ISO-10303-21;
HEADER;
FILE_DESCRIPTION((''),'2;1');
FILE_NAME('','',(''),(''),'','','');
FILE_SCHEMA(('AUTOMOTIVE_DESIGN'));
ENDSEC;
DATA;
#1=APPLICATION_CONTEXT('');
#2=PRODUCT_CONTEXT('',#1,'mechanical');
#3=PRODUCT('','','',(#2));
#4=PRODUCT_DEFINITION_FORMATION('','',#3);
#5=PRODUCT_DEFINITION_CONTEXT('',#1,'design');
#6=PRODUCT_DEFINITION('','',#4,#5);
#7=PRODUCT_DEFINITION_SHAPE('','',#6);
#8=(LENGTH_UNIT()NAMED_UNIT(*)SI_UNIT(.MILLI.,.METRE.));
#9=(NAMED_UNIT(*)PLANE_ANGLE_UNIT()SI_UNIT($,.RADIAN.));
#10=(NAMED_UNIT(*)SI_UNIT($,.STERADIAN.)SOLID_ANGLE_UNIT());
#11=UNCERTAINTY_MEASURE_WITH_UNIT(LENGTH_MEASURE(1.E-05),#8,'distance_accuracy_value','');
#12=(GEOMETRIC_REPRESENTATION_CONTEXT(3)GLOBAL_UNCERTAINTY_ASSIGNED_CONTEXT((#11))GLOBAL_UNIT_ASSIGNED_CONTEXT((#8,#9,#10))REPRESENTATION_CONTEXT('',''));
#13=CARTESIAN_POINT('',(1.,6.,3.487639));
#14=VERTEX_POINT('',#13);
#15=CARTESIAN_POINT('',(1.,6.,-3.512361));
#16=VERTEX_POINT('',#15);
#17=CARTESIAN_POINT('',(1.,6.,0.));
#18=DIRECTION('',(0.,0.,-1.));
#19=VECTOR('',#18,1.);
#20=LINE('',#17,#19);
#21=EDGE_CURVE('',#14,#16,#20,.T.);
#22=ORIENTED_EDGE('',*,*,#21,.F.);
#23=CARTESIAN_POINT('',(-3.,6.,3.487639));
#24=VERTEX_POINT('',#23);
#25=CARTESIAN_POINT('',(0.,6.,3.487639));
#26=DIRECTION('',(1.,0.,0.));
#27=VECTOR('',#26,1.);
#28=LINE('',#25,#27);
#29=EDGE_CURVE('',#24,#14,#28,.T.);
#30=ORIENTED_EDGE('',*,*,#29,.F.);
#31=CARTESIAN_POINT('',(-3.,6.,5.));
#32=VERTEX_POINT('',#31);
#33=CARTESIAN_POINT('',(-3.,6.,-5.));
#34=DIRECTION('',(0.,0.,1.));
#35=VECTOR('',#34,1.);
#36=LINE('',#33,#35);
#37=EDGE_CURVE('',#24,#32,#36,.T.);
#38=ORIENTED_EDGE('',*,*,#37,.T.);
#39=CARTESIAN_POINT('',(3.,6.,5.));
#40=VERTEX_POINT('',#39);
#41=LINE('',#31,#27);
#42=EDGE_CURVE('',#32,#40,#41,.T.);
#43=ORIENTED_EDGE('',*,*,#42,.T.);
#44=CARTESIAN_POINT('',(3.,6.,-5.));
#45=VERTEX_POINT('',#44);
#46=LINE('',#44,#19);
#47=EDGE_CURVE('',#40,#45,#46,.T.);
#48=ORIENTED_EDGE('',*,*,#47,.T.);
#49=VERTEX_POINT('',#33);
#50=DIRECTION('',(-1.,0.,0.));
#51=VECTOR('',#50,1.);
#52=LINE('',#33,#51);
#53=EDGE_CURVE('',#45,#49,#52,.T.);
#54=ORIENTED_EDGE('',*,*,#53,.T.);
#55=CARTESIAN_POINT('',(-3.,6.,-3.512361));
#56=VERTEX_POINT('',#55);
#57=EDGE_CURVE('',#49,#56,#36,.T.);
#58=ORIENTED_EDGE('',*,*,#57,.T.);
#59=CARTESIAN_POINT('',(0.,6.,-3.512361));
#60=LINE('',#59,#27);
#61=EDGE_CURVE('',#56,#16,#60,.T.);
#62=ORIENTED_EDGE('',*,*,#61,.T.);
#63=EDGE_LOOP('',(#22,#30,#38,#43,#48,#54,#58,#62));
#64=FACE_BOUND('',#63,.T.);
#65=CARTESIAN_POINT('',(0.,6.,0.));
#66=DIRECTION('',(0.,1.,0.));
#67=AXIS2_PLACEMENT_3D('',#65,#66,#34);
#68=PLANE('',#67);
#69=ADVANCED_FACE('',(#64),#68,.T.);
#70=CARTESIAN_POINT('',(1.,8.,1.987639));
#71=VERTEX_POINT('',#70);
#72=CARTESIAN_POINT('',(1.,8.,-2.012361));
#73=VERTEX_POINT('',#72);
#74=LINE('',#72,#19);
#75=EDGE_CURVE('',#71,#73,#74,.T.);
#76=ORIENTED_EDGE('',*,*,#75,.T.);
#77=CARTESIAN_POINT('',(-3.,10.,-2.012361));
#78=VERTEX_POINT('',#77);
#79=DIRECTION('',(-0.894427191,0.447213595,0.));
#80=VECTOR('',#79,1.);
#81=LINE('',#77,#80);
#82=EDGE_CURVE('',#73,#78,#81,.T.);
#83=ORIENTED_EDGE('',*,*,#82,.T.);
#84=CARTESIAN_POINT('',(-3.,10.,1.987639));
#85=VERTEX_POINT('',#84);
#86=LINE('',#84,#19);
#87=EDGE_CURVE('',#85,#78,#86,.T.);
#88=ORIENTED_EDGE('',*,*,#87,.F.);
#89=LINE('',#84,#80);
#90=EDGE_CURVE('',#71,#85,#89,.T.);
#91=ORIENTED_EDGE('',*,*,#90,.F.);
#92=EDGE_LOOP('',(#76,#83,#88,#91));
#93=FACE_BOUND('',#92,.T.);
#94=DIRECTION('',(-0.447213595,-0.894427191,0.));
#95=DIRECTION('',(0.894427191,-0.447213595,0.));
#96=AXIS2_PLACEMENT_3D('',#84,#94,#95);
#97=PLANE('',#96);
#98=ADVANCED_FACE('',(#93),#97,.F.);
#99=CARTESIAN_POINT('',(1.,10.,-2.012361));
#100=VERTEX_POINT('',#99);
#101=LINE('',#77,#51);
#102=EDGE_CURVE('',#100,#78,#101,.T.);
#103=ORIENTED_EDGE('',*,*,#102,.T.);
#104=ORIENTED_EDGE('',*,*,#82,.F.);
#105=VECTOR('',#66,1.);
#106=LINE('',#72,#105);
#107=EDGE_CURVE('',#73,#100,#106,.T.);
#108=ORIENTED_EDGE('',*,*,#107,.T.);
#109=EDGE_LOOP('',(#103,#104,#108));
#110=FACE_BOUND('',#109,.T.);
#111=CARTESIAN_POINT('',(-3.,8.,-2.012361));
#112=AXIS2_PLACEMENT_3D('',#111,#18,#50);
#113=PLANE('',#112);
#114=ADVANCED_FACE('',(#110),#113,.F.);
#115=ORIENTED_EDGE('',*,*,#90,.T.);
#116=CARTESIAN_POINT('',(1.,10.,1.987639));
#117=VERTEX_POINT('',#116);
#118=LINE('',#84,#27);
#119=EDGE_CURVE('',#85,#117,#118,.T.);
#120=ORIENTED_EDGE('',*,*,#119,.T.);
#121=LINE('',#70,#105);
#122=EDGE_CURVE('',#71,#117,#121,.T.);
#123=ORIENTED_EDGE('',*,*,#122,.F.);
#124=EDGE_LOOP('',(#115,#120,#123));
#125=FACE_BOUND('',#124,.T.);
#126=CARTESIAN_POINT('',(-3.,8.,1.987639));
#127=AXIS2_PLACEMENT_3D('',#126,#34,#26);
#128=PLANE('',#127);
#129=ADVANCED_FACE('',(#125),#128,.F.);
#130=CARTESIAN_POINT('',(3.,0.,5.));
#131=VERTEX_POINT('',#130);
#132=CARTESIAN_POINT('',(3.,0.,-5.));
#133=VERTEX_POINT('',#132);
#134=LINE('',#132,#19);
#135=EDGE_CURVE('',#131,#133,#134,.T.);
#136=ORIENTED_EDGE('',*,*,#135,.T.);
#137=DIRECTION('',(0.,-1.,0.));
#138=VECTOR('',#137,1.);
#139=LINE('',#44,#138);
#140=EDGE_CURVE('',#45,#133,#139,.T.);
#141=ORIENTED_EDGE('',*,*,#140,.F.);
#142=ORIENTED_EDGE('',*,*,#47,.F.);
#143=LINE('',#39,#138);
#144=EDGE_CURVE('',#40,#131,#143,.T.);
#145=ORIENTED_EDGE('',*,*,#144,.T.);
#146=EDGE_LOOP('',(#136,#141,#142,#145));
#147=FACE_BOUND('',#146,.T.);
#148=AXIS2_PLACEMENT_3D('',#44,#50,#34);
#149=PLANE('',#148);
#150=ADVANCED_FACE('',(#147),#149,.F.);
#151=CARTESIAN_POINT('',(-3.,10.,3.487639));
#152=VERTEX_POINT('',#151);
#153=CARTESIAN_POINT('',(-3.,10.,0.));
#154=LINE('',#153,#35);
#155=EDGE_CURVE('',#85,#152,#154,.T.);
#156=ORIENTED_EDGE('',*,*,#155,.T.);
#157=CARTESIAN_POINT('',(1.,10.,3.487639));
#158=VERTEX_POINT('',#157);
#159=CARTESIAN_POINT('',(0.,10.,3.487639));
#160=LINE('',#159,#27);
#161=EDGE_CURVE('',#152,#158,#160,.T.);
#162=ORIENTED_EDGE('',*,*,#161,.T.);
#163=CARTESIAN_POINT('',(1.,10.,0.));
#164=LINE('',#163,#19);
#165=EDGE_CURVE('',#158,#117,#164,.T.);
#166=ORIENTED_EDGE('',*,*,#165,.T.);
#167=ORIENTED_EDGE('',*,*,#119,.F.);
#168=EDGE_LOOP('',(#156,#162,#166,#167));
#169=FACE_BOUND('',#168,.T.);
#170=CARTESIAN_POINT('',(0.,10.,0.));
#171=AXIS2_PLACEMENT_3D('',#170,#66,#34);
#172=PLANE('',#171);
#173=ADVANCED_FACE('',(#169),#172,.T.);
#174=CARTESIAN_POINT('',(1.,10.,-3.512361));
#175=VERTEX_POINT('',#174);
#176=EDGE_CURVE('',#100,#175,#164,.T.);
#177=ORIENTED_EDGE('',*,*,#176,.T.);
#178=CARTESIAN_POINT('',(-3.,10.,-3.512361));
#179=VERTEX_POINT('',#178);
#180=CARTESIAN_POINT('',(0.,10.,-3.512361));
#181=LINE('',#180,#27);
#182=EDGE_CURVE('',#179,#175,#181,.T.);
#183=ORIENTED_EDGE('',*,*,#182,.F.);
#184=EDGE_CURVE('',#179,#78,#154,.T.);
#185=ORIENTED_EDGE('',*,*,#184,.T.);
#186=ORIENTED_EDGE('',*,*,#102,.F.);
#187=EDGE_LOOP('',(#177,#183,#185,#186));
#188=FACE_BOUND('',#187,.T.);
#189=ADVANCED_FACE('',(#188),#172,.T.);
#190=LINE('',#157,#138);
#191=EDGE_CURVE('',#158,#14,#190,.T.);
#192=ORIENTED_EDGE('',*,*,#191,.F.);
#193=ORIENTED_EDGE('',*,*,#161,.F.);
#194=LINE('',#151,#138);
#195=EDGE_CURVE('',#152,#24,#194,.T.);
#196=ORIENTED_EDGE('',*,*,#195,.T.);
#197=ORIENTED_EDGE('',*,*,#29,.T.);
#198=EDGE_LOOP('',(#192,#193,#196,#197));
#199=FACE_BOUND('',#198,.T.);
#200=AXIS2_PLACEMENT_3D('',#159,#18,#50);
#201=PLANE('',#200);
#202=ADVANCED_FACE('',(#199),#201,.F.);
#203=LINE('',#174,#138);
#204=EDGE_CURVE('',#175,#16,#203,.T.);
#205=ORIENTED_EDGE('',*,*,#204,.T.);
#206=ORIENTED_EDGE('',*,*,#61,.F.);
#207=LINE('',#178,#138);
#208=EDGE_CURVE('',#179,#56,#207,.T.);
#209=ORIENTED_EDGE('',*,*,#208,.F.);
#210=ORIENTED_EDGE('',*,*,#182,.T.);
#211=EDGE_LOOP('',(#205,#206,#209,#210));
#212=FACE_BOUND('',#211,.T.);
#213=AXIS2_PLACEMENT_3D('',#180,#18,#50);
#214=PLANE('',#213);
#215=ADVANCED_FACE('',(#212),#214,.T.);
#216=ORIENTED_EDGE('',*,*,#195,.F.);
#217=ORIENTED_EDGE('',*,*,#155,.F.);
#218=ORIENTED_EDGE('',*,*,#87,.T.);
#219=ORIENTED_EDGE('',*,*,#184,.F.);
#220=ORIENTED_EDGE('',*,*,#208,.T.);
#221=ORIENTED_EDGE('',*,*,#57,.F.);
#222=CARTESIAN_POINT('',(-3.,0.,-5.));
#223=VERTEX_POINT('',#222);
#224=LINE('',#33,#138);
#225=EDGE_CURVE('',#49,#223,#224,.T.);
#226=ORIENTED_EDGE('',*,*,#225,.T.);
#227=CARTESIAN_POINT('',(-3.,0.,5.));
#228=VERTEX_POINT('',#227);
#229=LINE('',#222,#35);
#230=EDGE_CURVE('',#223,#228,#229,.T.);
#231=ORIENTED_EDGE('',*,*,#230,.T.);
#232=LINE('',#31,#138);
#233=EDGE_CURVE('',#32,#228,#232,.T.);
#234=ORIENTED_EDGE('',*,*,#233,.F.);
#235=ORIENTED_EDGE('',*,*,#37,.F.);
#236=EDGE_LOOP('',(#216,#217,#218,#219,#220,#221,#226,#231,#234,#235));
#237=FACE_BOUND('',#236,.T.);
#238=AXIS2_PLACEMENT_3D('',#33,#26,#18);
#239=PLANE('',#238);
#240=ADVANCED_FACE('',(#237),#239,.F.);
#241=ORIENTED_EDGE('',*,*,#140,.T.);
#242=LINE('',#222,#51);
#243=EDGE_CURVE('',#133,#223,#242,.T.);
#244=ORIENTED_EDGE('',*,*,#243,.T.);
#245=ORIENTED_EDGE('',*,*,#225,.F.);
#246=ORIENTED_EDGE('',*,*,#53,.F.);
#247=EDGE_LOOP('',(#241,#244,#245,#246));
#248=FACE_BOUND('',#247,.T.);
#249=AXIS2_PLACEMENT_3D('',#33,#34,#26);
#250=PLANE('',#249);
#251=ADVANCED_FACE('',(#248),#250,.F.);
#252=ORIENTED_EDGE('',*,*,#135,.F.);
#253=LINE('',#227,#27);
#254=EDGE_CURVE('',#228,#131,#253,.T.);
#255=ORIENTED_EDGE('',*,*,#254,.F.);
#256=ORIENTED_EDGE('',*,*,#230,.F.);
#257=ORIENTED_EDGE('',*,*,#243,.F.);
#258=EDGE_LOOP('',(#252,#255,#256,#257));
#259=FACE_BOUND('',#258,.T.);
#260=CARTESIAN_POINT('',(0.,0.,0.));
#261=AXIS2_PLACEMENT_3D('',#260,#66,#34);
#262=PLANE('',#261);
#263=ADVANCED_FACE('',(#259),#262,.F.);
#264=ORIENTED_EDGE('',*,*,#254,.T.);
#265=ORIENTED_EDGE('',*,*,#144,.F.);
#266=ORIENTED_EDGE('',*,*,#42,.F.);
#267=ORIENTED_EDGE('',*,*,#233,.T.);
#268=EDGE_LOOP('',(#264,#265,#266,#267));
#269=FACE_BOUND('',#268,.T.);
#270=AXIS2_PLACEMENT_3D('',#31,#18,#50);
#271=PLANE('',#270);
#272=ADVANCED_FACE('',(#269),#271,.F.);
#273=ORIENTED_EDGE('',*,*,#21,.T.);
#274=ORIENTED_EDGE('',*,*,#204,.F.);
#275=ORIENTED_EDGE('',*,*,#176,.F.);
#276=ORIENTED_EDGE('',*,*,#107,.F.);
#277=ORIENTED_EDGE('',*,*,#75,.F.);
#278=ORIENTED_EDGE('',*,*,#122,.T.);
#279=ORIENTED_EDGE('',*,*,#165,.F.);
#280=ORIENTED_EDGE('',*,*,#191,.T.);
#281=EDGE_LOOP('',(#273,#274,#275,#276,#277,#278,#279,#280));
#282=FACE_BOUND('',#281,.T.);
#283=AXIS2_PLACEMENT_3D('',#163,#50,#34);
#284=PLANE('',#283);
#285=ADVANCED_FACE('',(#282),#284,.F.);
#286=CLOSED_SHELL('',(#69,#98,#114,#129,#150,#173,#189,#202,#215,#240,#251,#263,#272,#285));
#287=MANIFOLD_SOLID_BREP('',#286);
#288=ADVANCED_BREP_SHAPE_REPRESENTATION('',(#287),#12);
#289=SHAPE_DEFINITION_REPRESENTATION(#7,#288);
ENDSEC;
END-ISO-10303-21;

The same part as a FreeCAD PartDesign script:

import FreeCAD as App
import Part
import Sketcher

V = App.Vector
Q = App.Units.Quantity

doc = App.newDocument("Part")
body = doc.addObject("PartDesign::Body", "Body")

sketch1 = body.newObject("Sketcher::SketchObject", "Sketch")
sketch1.AttachmentSupport = (doc.getObject("XZ_Plane"), [""])
sketch1.MapMode = "FlatFace"
sketch1.addGeometry(Part.LineSegment(V(-3, -5, 0), V(-3, 5, 0)), False)
sketch1.addGeometry(Part.LineSegment(V(-3, 5, 0), V(3, 5, 0)), False)
sketch1.addGeometry(Part.LineSegment(V(3, 5, 0), V(3, -5, 0)), False)
sketch1.addGeometry(Part.LineSegment(V(3, -5, 0), V(-3, -5, 0)), False)
sketch1.addConstraint(Sketcher.Constraint("Coincident", 0, 2, 1, 1))
sketch1.addConstraint(Sketcher.Constraint("Coincident", 1, 2, 2, 1))
sketch1.addConstraint(Sketcher.Constraint("Coincident", 2, 2, 3, 1))
sketch1.addConstraint(Sketcher.Constraint("Coincident", 3, 2, 0, 1))
sketch1.addConstraint(Sketcher.Constraint("Vertical", 0))
sketch1.addConstraint(Sketcher.Constraint("Horizontal", 1))
sketch1.addConstraint(Sketcher.Constraint("Vertical", 2))
sketch1.addConstraint(Sketcher.Constraint("Horizontal", 3))
sketch1.addConstraint(Sketcher.Constraint("Symmetric", 0, 2, 2, 2, -1, 1))
sketch1.addConstraint(Sketcher.Constraint("DistanceX", 1, 1, 1, 2, Q("6 mm")))
sketch1.addConstraint(Sketcher.Constraint("DistanceY", 0, 1, 0, 2, Q("10 mm")))
pad1 = body.newObject("PartDesign::Pad", "Pad")
pad1.Profile = sketch1
pad1.Length = 6
pad1.Reversed = True

sketch2 = body.newObject("Sketcher::SketchObject", "Sketch001")
sketch2.AttachmentSupport = (doc.getObject("XZ_Plane"), [""])
sketch2.MapMode = "FlatFace"
sketch2.AttachmentOffset = App.Placement(V(0, 0, -6), App.Rotation())
sketch2.addGeometry(Part.LineSegment(V(-3, -3.5, 0), V(-3, 3.5, 0)), False)
sketch2.addGeometry(Part.LineSegment(V(-3, 3.5, 0), V(1, 3.5, 0)), False)
sketch2.addGeometry(Part.LineSegment(V(1, 3.5, 0), V(1, -3.5, 0)), False)
sketch2.addGeometry(Part.LineSegment(V(1, -3.5, 0), V(-3, -3.5, 0)), False)
sketch2.addConstraint(Sketcher.Constraint("Coincident", 0, 2, 1, 1))
sketch2.addConstraint(Sketcher.Constraint("Coincident", 1, 2, 2, 1))
sketch2.addConstraint(Sketcher.Constraint("Coincident", 2, 2, 3, 1))
sketch2.addConstraint(Sketcher.Constraint("Coincident", 3, 2, 0, 1))
sketch2.addConstraint(Sketcher.Constraint("Vertical", 0))
sketch2.addConstraint(Sketcher.Constraint("Horizontal", 1))
sketch2.addConstraint(Sketcher.Constraint("Vertical", 2))
sketch2.addConstraint(Sketcher.Constraint("Horizontal", 3))
sketch2.addConstraint(Sketcher.Constraint("DistanceX", 1, 1, 1, 2, Q("4 mm")))
sketch2.addConstraint(Sketcher.Constraint("DistanceY", 0, 1, 0, 2, Q("7 mm")))
sketch2.addConstraint(Sketcher.Constraint("DistanceX", 0, 2, -1, 1, Q("3 mm")))
sketch2.addConstraint(Sketcher.Constraint("DistanceY", -1, 1, 0, 2, Q("3.487639 mm")))
pad2 = body.newObject("PartDesign::Pad", "Pad001")
pad2.Profile = sketch2
pad2.Length = 4
pad2.Reversed = True

sketch3 = body.newObject("Sketcher::SketchObject", "Sketch002")
sketch3.AttachmentSupport = (doc.getObject("XZ_Plane"), [""])
sketch3.MapMode = "FlatFace"
sketch3.AttachmentOffset = App.Placement(V(0, 0, -10), App.Rotation())
sketch3.addGeometry(Part.LineSegment(V(-3, -2, 0), V(-3, 2, 0)), False)
sketch3.addGeometry(Part.LineSegment(V(-3, 2, 0), V(1, 2, 0)), False)
sketch3.addGeometry(Part.LineSegment(V(1, 2, 0), V(1, -2, 0)), False)
sketch3.addGeometry(Part.LineSegment(V(1, -2, 0), V(-3, -2, 0)), False)
sketch3.addConstraint(Sketcher.Constraint("Coincident", 0, 2, 1, 1))
sketch3.addConstraint(Sketcher.Constraint("Coincident", 1, 2, 2, 1))
sketch3.addConstraint(Sketcher.Constraint("Coincident", 2, 2, 3, 1))
sketch3.addConstraint(Sketcher.Constraint("Coincident", 3, 2, 0, 1))
sketch3.addConstraint(Sketcher.Constraint("Vertical", 0))
sketch3.addConstraint(Sketcher.Constraint("Horizontal", 1))
sketch3.addConstraint(Sketcher.Constraint("Vertical", 2))
sketch3.addConstraint(Sketcher.Constraint("Horizontal", 3))
sketch3.addConstraint(Sketcher.Constraint("Equal", 3, 0))
sketch3.addConstraint(Sketcher.Constraint("DistanceX", 1, 1, 1, 2, Q("4 mm")))
sketch3.addConstraint(Sketcher.Constraint("DistanceX", 0, 2, -1, 1, Q("3 mm")))
sketch3.addConstraint(Sketcher.Constraint("DistanceY", -1, 1, 0, 2, Q("1.987639 mm")))
pocket1 = body.newObject("PartDesign::Pocket", "Pocket")
pocket1.Profile = sketch3
pocket1.Length = 2
pocket1.Reversed = True

sketch4 = body.newObject("Sketcher::SketchObject", "Sketch003")
sketch4.AttachmentSupport = (doc.getObject("XY_Plane"), [""])
sketch4.MapMode = "FlatFace"
sketch4.AttachmentOffset = App.Placement(V(0, 0, -2.012361), App.Rotation())
sketch4.addGeometry(Part.LineSegment(V(1, 8, 0), V(-3, 10, 0)), False)
sketch4.addGeometry(Part.LineSegment(V(-3, 10, 0), V(-3, 8, 0)), False)
sketch4.addGeometry(Part.LineSegment(V(-3, 8, 0), V(1, 8, 0)), False)
sketch4.addConstraint(Sketcher.Constraint("Coincident", 0, 2, 1, 1))
sketch4.addConstraint(Sketcher.Constraint("Coincident", 1, 2, 2, 1))
sketch4.addConstraint(Sketcher.Constraint("Coincident", 2, 2, 0, 1))
sketch4.addConstraint(Sketcher.Constraint("Vertical", 1))
sketch4.addConstraint(Sketcher.Constraint("Horizontal", 2))
sketch4.addConstraint(Sketcher.Constraint("DistanceX", 2, 1, 2, 2, Q("4 mm")))
sketch4.addConstraint(Sketcher.Constraint("DistanceY", 1, 2, 1, 1, Q("2 mm")))
sketch4.addConstraint(Sketcher.Constraint("DistanceX", 0, 2, -1, 1, Q("3 mm")))
sketch4.addConstraint(Sketcher.Constraint("DistanceY", -1, 1, 0, 2, Q("10 mm")))
pad3 = body.newObject("PartDesign::Pad", "Pad002")
pad3.Profile = sketch4
pad3.Length = 4

doc.recompute()
